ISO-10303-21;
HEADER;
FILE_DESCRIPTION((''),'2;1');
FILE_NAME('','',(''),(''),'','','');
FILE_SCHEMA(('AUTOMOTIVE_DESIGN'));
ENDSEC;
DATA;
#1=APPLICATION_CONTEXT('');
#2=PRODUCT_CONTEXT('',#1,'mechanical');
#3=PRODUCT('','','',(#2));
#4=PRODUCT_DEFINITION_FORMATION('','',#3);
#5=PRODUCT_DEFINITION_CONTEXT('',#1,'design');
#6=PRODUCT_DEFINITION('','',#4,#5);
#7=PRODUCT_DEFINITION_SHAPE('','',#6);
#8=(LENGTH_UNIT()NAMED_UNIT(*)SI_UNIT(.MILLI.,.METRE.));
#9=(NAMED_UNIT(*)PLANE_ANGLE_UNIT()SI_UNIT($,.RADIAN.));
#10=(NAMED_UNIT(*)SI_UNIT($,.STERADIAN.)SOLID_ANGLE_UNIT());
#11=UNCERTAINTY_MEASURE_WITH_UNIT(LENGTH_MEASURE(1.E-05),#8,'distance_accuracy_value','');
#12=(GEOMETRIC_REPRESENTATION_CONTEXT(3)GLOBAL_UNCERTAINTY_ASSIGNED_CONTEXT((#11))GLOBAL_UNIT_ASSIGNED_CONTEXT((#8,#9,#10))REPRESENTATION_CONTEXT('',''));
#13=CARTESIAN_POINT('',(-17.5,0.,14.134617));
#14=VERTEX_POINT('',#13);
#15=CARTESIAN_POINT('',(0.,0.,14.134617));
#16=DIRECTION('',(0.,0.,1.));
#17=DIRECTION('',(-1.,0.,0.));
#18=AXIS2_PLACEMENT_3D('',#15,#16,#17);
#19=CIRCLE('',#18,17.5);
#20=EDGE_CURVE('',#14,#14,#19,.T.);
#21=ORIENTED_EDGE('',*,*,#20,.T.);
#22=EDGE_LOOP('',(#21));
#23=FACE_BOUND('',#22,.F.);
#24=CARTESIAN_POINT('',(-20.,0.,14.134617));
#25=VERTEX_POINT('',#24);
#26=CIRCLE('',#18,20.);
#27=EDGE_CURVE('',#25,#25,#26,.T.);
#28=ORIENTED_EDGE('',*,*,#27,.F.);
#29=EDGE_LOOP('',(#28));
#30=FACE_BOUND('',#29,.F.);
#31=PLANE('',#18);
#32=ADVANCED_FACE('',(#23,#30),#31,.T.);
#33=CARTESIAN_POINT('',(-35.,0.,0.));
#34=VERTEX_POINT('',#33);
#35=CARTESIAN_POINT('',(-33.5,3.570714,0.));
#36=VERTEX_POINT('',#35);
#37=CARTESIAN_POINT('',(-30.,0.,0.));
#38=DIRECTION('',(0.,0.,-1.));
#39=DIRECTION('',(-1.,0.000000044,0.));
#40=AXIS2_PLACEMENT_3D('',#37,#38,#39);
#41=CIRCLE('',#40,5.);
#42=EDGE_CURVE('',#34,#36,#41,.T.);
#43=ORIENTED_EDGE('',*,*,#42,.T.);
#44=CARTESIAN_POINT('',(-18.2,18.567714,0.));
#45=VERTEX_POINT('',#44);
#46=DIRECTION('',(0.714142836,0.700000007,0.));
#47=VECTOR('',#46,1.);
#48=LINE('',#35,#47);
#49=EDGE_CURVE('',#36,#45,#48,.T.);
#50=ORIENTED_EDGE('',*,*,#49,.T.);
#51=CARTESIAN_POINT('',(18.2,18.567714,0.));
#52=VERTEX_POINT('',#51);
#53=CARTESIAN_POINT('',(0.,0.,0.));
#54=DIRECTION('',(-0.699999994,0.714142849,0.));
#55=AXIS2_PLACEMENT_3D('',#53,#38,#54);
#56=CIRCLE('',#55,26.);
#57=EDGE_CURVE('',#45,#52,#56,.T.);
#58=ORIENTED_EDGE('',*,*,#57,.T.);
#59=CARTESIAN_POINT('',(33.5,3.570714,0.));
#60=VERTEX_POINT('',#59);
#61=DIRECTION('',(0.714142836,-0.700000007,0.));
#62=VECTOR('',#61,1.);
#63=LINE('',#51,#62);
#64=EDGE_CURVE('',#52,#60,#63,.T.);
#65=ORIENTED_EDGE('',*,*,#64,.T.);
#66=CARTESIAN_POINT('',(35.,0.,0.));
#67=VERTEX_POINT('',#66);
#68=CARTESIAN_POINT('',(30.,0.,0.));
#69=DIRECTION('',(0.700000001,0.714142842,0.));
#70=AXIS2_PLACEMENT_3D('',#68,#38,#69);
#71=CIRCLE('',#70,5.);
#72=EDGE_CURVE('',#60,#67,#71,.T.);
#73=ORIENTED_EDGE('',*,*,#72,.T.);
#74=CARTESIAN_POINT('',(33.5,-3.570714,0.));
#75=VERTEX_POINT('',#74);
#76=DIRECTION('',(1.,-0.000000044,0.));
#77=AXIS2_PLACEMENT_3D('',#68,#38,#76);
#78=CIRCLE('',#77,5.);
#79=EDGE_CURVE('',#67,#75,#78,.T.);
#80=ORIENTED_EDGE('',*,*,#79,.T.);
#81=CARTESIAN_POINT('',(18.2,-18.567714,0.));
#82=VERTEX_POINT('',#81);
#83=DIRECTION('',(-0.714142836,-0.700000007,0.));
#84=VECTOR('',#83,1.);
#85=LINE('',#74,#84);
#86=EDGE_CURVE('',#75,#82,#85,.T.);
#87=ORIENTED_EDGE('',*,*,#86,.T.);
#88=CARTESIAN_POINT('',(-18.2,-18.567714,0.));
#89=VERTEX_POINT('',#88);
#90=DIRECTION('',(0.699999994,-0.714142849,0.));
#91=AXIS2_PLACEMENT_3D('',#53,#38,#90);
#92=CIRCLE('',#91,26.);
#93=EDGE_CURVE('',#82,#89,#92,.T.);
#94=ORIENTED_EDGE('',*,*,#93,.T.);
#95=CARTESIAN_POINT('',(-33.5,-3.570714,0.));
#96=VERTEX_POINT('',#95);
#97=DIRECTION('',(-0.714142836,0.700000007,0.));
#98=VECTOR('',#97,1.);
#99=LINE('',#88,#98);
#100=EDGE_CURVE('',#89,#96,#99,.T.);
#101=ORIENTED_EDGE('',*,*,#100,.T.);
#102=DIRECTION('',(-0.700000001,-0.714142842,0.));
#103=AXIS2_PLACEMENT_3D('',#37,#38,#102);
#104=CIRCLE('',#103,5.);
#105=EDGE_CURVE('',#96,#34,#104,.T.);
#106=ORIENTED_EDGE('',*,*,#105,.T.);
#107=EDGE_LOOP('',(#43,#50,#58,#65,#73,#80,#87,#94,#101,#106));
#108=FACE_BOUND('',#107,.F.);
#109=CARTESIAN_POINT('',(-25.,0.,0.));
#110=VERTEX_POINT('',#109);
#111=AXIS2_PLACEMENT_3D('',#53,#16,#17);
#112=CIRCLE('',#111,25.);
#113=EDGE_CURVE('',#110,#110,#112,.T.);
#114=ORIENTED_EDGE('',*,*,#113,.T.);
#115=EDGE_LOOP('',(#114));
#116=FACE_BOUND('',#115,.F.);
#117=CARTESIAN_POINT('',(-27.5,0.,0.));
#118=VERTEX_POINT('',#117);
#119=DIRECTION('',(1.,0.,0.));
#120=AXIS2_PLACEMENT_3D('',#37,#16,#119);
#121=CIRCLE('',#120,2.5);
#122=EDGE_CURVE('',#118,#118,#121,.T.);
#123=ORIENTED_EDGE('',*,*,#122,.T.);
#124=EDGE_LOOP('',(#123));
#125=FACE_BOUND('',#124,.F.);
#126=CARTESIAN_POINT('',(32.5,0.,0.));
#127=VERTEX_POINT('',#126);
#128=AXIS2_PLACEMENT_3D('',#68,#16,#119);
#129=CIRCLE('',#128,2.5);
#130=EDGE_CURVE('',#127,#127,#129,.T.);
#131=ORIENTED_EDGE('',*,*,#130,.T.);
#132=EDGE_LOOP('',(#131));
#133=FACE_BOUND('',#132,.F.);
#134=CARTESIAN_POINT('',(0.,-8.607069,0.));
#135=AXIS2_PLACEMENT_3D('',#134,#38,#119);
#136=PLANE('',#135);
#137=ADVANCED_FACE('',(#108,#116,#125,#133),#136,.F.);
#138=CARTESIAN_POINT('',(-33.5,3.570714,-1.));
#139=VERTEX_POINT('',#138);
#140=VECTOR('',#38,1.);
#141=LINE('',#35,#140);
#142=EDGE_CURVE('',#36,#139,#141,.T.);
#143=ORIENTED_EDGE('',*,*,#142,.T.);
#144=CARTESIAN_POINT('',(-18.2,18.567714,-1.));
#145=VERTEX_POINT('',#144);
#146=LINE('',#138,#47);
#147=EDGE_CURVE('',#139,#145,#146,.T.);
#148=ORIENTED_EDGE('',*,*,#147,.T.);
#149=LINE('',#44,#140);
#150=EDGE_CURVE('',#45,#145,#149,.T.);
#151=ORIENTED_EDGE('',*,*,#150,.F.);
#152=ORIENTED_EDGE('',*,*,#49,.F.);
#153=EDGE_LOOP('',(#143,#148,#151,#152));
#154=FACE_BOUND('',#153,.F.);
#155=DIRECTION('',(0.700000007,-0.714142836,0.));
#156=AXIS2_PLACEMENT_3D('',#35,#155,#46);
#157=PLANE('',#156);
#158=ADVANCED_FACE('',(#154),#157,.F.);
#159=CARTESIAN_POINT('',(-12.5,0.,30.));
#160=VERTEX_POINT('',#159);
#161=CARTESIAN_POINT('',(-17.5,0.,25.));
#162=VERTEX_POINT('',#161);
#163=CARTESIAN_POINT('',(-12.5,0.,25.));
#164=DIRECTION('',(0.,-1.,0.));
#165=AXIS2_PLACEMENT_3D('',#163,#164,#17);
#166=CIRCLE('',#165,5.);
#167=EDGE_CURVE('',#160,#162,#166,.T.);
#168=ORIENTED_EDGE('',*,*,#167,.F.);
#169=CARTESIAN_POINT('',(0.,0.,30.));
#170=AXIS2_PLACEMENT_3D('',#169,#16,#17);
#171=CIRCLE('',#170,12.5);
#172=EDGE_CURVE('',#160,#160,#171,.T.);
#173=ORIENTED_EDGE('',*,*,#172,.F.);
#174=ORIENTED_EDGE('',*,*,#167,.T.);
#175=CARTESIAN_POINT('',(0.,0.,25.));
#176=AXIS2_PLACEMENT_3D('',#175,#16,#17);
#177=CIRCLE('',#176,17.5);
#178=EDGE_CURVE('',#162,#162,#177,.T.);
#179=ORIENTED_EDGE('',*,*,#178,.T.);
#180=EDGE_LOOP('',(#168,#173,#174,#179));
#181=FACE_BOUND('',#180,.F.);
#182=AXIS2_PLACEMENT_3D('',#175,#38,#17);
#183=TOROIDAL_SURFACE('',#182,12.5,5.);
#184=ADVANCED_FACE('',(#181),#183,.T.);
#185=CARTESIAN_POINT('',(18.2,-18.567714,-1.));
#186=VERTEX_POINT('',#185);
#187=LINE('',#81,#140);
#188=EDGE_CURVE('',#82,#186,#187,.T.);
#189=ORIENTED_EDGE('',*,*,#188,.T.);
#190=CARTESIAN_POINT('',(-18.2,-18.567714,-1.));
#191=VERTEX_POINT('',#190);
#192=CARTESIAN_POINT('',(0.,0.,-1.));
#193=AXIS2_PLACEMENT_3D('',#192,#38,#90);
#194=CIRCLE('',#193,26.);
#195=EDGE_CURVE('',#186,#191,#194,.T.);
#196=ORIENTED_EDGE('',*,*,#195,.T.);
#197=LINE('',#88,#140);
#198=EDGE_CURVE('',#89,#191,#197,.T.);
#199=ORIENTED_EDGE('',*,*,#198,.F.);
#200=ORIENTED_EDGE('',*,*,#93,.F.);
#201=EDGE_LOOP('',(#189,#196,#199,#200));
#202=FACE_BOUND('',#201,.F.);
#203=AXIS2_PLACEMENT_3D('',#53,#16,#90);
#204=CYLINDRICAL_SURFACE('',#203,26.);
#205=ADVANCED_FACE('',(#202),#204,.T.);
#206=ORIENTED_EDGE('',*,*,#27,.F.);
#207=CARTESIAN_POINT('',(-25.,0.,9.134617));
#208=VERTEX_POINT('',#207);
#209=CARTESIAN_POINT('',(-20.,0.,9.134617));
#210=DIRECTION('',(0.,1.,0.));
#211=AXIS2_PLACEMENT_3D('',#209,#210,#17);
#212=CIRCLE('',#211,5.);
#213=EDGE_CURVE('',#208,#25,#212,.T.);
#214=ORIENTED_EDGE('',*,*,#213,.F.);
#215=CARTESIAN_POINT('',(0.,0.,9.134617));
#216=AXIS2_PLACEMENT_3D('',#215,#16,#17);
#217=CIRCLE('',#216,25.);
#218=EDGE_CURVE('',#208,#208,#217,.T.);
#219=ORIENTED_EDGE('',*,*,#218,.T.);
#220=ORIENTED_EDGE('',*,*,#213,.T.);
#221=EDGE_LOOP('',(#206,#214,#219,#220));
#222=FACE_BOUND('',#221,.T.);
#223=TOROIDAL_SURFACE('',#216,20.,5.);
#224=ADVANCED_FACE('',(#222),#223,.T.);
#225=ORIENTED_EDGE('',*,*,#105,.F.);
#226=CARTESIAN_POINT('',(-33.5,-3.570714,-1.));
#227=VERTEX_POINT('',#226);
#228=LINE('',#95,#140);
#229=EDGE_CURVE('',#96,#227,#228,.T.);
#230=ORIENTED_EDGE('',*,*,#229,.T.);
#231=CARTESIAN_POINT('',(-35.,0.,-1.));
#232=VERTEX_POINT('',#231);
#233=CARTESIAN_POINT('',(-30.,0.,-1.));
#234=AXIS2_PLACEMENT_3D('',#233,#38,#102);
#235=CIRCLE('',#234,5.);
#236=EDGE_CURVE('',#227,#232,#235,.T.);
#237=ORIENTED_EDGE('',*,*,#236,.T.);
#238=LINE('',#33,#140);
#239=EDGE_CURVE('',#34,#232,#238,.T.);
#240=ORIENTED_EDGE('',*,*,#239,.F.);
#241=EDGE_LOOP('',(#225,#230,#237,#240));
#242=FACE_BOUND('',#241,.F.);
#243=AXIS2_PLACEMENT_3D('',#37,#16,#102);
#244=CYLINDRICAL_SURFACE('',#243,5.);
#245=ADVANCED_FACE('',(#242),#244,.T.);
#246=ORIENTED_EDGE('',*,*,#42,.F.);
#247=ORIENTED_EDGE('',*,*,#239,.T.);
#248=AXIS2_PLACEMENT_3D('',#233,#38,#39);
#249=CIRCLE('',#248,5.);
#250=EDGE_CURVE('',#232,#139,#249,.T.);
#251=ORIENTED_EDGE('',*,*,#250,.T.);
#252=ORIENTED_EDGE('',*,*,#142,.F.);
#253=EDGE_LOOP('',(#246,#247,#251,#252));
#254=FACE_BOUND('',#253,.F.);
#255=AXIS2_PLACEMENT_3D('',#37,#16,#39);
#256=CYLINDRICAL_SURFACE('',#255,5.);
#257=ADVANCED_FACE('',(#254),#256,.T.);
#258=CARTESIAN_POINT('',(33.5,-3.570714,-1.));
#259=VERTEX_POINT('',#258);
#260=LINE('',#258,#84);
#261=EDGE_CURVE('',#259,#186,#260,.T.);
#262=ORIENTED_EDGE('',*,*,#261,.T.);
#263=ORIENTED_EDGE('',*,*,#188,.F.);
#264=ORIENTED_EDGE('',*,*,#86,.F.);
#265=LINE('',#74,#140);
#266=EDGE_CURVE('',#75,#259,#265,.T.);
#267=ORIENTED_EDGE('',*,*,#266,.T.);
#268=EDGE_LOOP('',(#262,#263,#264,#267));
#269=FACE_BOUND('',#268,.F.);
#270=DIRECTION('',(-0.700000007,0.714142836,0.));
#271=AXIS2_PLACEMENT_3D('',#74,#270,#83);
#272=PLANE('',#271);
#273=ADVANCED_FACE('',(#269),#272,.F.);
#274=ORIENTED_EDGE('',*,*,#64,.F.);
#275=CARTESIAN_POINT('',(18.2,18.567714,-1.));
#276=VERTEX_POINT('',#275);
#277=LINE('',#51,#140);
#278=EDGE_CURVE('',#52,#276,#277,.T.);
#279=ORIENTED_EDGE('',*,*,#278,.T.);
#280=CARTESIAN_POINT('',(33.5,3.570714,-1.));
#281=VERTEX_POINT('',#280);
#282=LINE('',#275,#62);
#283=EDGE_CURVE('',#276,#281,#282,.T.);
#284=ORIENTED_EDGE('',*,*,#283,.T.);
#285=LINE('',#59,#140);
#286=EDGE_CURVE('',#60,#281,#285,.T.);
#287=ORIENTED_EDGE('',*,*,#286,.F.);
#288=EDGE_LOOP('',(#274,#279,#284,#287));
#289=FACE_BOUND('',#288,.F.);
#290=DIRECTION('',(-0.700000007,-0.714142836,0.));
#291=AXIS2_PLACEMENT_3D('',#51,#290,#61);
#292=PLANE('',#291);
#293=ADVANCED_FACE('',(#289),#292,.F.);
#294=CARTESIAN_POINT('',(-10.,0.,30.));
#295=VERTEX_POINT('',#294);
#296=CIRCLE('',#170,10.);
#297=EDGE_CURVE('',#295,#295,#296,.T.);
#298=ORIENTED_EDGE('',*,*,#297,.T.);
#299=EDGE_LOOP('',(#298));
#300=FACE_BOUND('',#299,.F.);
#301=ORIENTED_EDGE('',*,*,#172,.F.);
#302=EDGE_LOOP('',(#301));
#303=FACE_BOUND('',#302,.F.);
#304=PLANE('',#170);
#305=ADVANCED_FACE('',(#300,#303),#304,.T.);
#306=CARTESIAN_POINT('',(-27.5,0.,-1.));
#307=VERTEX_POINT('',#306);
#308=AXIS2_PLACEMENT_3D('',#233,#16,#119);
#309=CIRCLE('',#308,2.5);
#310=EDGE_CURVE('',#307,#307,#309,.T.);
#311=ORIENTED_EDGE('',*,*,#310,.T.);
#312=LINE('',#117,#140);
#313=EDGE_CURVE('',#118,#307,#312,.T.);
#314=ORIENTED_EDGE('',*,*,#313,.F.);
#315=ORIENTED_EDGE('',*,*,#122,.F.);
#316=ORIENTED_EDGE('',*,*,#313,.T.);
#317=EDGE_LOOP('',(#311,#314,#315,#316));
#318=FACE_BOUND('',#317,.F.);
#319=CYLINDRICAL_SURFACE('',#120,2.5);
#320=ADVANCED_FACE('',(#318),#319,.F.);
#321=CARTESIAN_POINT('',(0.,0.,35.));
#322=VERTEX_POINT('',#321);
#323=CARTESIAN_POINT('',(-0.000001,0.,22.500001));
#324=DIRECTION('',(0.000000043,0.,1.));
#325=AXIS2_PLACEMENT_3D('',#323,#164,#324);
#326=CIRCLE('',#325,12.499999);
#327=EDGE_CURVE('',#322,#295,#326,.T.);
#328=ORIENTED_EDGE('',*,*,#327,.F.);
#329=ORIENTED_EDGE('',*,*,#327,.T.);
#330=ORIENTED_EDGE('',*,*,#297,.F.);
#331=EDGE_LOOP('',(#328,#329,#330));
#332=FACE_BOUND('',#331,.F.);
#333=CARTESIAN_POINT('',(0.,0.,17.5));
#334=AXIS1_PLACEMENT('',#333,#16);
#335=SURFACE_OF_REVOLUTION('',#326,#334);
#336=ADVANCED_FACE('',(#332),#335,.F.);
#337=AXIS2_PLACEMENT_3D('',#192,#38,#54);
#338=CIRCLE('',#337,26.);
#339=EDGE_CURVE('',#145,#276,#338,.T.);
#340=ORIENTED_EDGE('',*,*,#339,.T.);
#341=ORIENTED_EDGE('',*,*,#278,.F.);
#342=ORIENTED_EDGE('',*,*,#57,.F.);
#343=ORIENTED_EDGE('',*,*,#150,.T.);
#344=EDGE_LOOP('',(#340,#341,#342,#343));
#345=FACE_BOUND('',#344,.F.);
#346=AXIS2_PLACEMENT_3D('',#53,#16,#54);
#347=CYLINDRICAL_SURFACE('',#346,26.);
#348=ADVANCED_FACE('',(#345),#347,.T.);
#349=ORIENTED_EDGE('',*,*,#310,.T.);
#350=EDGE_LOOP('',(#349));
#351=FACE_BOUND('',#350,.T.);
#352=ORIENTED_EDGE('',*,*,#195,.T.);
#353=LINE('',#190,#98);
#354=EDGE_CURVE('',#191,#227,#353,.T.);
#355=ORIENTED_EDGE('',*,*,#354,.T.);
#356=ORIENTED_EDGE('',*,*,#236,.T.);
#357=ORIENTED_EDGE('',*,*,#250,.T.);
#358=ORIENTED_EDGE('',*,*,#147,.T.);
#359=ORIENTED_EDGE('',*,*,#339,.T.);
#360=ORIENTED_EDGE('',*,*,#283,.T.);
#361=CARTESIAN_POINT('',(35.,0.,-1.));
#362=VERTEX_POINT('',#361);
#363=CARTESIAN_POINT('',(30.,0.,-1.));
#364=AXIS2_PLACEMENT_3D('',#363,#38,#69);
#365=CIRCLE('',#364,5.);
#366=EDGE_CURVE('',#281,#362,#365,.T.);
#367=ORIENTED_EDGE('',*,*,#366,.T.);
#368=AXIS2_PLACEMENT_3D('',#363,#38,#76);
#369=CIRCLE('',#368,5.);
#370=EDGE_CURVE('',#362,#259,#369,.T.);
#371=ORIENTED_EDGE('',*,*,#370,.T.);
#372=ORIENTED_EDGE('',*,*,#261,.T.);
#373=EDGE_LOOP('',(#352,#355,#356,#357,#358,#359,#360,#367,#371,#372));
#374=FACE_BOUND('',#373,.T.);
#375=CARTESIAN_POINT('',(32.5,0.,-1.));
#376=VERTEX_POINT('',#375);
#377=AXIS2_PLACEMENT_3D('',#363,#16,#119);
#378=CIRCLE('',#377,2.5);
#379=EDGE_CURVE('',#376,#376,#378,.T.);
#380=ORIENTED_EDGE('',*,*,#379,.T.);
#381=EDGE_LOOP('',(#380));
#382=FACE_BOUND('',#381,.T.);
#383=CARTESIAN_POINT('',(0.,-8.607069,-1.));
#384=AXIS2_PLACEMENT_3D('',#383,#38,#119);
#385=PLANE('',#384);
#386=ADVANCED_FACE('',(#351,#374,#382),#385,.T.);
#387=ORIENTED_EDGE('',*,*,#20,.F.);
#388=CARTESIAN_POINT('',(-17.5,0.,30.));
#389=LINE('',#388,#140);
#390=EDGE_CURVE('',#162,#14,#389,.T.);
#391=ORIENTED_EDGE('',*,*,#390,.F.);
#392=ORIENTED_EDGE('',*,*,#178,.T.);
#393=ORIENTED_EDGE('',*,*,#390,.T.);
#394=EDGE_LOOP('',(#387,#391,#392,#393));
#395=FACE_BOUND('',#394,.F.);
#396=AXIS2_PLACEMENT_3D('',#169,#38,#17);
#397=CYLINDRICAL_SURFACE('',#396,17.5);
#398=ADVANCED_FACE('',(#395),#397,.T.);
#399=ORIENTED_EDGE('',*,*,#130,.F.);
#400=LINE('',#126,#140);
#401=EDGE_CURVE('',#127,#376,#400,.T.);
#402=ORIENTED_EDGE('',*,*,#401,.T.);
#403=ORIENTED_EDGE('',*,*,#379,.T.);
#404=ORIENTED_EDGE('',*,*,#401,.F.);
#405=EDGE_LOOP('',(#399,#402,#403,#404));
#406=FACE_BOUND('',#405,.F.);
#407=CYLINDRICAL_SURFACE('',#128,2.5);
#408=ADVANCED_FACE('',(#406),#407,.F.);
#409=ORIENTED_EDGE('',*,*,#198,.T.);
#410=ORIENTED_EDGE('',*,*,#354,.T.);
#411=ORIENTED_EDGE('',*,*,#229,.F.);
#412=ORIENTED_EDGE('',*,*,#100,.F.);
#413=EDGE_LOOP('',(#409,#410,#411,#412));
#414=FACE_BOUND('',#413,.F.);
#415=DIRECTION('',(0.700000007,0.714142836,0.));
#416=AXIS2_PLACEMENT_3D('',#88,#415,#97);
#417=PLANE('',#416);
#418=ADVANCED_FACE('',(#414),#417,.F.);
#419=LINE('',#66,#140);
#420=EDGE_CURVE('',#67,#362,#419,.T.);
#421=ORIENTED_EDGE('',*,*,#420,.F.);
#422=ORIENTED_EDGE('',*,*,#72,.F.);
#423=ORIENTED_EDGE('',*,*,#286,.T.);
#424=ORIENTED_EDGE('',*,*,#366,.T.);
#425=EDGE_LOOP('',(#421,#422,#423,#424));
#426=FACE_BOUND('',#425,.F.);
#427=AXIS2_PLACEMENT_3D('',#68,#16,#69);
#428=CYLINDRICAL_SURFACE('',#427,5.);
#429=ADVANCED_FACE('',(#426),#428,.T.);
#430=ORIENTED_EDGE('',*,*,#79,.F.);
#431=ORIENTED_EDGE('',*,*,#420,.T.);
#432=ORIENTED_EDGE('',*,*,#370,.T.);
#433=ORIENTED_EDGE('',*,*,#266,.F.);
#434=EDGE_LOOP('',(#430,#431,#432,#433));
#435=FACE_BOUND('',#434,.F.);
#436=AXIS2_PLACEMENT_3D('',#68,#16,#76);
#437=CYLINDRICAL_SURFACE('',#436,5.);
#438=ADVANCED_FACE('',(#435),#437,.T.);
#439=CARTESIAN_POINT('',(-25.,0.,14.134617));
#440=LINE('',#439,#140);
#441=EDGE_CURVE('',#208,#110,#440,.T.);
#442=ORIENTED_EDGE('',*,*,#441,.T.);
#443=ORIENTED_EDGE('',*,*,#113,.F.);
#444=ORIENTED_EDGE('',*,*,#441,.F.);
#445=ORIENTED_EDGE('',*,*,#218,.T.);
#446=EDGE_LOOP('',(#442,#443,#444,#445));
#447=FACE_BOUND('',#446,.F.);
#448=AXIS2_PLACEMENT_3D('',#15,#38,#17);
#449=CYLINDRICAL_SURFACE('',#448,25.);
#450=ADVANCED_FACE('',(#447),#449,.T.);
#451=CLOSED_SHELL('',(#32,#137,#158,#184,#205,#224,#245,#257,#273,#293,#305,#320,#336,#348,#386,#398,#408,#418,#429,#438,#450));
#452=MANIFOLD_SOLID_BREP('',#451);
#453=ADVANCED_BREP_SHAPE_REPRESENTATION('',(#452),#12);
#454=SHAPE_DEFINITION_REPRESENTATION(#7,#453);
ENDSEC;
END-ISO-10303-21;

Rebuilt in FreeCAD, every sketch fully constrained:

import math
import FreeCAD as App
import Part
import Sketcher
Q = App.Units.Quantity


def edges_at(feature, points):
    """Names of the edges that pass closest to the given points."""
    edges = feature.Shape.Edges
    near = lambda p: min(range(len(edges)), key=lambda i: edges[i].distToShape(Part.Vertex(*p))[0])
    return sorted({f"Edge{near(p) + 1}" for p in points})

doc = App.newDocument("Part")
body = doc.addObject("PartDesign::Body", "Body")

# Sketch on XZ plane
sketch1 = body.newObject("Sketcher::SketchObject", "Sketch")
sketch1.AttachmentSupport = (doc.getObject("XZ_Plane"), [""])
sketch1.MapMode = "FlatFace"
sketch1.addGeometry([
    Part.LineSegment(App.Vector(-25, 14, 0), App.Vector(-25, 0, 0)),  # 0
    Part.LineSegment(App.Vector(-25, 0, 0), App.Vector(0, 0, 0)),  # 1
    Part.LineSegment(App.Vector(0, 0, 0), App.Vector(0, 35, 0)),  # 2
    Part.ArcOfCircle(Part.Circle(App.Vector(0, 23, 0), App.Vector(0, 0, 1), 12), math.radians(90), math.radians(143)),  # 3
    Part.LineSegment(App.Vector(-10, 30, 0), App.Vector(-18, 30, 0)),  # 4
    Part.LineSegment(App.Vector(-18, 30, 0), App.Vector(-18, 14, 0)),  # 5
    Part.LineSegment(App.Vector(-18, 14, 0), App.Vector(-25, 14, 0)),  # 6
], False)
sketch1.addConstraint([
    Sketcher.Constraint("Coincident", 0, 2, 1, 1),
    Sketcher.Constraint("Coincident", 1, 2, 2, 1),
    Sketcher.Constraint("Coincident", 2, 2, 3, 1),
    Sketcher.Constraint("Coincident", 3, 2, 4, 1),
    Sketcher.Constraint("Coincident", 4, 2, 5, 1),
    Sketcher.Constraint("Coincident", 5, 2, 6, 1),
    Sketcher.Constraint("Coincident", 6, 2, 0, 1),
    Sketcher.Constraint("Vertical", 0),
    Sketcher.Constraint("Horizontal", 1),
    Sketcher.Constraint("Vertical", 2),
    Sketcher.Constraint("Horizontal", 4),
    Sketcher.Constraint("Vertical", 5),
    Sketcher.Constraint("Horizontal", 6),
    Sketcher.Constraint("Coincident", 1, 2, -1, 1),
    Sketcher.Constraint("PointOnObject", 3, 3, -2),
    Sketcher.Constraint("Equal", 4, 6),
    Sketcher.Constraint("Radius", 3, Q("12.499999 mm")),
    Sketcher.Constraint("DistanceX", 1, 1, 1, 2, Q("25 mm")),
    Sketcher.Constraint("DistanceY", 2, 1, 2, 2, Q("35 mm")),
    Sketcher.Constraint("DistanceX", 4, 2, 4, 1, Q("7.5 mm")),
    Sketcher.Constraint("DistanceY", 0, 2, 0, 1, Q("14.134617 mm")),
])
revolution = body.newObject("PartDesign::Revolution", "Revolution")
revolution.Profile = sketch1
revolution.ReferenceAxis = (sketch1, ["V_Axis"])
revolution.Angle = 360
doc.recompute()

fillet = body.newObject("PartDesign::Fillet", "Fillet")
fillet.Base = (revolution, edges_at(revolution, [(17.5, 0, 30), (25, 0, 14.135)]))
fillet.Radius = 5

# Sketch on XY plane
sketch2 = body.newObject("Sketcher::SketchObject", "Sketch001")
sketch2.AttachmentSupport = (doc.getObject("XY_Plane"), [""])
sketch2.MapMode = "FlatFace"
sketch2.addGeometry([
    Part.ArcOfCircle(Part.Circle(App.Vector(30, 0, 0), App.Vector(0, 0, 1), 5), math.radians(-46), math.radians(0)),  # 0
    Part.LineSegment(App.Vector(33.5, -3.6, 0), App.Vector(18.2, -18.6, 0)),  # 1
    Part.ArcOfCircle(Part.Circle(App.Vector(0, 0, 0), App.Vector(0, 0, 1), 26), math.radians(-134), math.radians(-46)),  # 2
    Part.LineSegment(App.Vector(-18.2, -18.6, 0), App.Vector(-33.5, -3.6, 0)),  # 3
    Part.ArcOfCircle(Part.Circle(App.Vector(-30, 0, 0), App.Vector(0, 0, 1), 5), math.radians(-180), math.radians(-134)),  # 4
    Part.ArcOfCircle(Part.Circle(App.Vector(-30, 0, 0), App.Vector(0, 0, 1), 5), math.radians(134), math.radians(180)),  # 5
    Part.LineSegment(App.Vector(-33.5, 3.6, 0), App.Vector(-18.2, 18.6, 0)),  # 6
    Part.ArcOfCircle(Part.Circle(App.Vector(0, 0, 0), App.Vector(0, 0, 1), 26), math.radians(46), math.radians(134)),  # 7
    Part.LineSegment(App.Vector(18.2, 18.6, 0), App.Vector(33.5, 3.6, 0)),  # 8
    Part.ArcOfCircle(Part.Circle(App.Vector(30, 0, 0), App.Vector(0, 0, 1), 5), math.radians(0), math.radians(46)),  # 9
    Part.Circle(App.Vector(30, 0, 0), App.Vector(0, 0, 1), 2.5),  # 10
    Part.Circle(App.Vector(-30, 0, 0), App.Vector(0, 0, 1), 2.5),  # 11
], False)
sketch2.addConstraint([
    Sketcher.Constraint("Tangent", 0, 1, 1, 1),
    Sketcher.Constraint("Tangent", 1, 2, 2, 2),
    Sketcher.Constraint("Tangent", 2, 1, 3, 1),
    Sketcher.Constraint("Tangent", 3, 2, 4, 2),
    Sketcher.Constraint("Tangent", 4, 1, 5, 2),
    Sketcher.Constraint("Tangent", 5, 1, 6, 1),
    Sketcher.Constraint("Tangent", 6, 2, 7, 2),
    Sketcher.Constraint("Tangent", 7, 1, 8, 1),
    Sketcher.Constraint("Tangent", 8, 2, 9, 2),
    Sketcher.Constraint("Tangent", 9, 1, 0, 2),
    Sketcher.Constraint("Coincident", 2, 3, -1, 1),
    Sketcher.Constraint("Coincident", 7, 3, -1, 1),
    Sketcher.Constraint("Coincident", 10, 3, 0, 3),
    Sketcher.Constraint("Coincident", 11, 3, 4, 3),
    Sketcher.Constraint("Equal", 0, 4),
    Sketcher.Constraint("Equal", 4, 5),
    Sketcher.Constraint("Equal", 2, 7),
    Sketcher.Constraint("Equal", 5, 9),
    Sketcher.Constraint("Equal", 10, 11),
    Sketcher.Constraint("Symmetric", 0, 3, 4, 3, -1, 1),
    Sketcher.Constraint("PointOnObject", 0, 3, -1),
    Sketcher.Constraint("PointOnObject", 4, 1, -1),
    Sketcher.Constraint("PointOnObject", 9, 1, -1),
    Sketcher.Constraint("Diameter", 10, Q("5 mm")),
    Sketcher.Constraint("Radius", 0, Q("5 mm")),
    Sketcher.Constraint("Radius", 2, Q("26 mm")),
    Sketcher.Constraint("DistanceX", -1, 1, 0, 3, Q("30 mm")),
])
pad1 = body.newObject("PartDesign::Pad", "Pad")
pad1.Profile = sketch2
pad1.Length = 1
pad1.Reversed = True

doc.recompute()
